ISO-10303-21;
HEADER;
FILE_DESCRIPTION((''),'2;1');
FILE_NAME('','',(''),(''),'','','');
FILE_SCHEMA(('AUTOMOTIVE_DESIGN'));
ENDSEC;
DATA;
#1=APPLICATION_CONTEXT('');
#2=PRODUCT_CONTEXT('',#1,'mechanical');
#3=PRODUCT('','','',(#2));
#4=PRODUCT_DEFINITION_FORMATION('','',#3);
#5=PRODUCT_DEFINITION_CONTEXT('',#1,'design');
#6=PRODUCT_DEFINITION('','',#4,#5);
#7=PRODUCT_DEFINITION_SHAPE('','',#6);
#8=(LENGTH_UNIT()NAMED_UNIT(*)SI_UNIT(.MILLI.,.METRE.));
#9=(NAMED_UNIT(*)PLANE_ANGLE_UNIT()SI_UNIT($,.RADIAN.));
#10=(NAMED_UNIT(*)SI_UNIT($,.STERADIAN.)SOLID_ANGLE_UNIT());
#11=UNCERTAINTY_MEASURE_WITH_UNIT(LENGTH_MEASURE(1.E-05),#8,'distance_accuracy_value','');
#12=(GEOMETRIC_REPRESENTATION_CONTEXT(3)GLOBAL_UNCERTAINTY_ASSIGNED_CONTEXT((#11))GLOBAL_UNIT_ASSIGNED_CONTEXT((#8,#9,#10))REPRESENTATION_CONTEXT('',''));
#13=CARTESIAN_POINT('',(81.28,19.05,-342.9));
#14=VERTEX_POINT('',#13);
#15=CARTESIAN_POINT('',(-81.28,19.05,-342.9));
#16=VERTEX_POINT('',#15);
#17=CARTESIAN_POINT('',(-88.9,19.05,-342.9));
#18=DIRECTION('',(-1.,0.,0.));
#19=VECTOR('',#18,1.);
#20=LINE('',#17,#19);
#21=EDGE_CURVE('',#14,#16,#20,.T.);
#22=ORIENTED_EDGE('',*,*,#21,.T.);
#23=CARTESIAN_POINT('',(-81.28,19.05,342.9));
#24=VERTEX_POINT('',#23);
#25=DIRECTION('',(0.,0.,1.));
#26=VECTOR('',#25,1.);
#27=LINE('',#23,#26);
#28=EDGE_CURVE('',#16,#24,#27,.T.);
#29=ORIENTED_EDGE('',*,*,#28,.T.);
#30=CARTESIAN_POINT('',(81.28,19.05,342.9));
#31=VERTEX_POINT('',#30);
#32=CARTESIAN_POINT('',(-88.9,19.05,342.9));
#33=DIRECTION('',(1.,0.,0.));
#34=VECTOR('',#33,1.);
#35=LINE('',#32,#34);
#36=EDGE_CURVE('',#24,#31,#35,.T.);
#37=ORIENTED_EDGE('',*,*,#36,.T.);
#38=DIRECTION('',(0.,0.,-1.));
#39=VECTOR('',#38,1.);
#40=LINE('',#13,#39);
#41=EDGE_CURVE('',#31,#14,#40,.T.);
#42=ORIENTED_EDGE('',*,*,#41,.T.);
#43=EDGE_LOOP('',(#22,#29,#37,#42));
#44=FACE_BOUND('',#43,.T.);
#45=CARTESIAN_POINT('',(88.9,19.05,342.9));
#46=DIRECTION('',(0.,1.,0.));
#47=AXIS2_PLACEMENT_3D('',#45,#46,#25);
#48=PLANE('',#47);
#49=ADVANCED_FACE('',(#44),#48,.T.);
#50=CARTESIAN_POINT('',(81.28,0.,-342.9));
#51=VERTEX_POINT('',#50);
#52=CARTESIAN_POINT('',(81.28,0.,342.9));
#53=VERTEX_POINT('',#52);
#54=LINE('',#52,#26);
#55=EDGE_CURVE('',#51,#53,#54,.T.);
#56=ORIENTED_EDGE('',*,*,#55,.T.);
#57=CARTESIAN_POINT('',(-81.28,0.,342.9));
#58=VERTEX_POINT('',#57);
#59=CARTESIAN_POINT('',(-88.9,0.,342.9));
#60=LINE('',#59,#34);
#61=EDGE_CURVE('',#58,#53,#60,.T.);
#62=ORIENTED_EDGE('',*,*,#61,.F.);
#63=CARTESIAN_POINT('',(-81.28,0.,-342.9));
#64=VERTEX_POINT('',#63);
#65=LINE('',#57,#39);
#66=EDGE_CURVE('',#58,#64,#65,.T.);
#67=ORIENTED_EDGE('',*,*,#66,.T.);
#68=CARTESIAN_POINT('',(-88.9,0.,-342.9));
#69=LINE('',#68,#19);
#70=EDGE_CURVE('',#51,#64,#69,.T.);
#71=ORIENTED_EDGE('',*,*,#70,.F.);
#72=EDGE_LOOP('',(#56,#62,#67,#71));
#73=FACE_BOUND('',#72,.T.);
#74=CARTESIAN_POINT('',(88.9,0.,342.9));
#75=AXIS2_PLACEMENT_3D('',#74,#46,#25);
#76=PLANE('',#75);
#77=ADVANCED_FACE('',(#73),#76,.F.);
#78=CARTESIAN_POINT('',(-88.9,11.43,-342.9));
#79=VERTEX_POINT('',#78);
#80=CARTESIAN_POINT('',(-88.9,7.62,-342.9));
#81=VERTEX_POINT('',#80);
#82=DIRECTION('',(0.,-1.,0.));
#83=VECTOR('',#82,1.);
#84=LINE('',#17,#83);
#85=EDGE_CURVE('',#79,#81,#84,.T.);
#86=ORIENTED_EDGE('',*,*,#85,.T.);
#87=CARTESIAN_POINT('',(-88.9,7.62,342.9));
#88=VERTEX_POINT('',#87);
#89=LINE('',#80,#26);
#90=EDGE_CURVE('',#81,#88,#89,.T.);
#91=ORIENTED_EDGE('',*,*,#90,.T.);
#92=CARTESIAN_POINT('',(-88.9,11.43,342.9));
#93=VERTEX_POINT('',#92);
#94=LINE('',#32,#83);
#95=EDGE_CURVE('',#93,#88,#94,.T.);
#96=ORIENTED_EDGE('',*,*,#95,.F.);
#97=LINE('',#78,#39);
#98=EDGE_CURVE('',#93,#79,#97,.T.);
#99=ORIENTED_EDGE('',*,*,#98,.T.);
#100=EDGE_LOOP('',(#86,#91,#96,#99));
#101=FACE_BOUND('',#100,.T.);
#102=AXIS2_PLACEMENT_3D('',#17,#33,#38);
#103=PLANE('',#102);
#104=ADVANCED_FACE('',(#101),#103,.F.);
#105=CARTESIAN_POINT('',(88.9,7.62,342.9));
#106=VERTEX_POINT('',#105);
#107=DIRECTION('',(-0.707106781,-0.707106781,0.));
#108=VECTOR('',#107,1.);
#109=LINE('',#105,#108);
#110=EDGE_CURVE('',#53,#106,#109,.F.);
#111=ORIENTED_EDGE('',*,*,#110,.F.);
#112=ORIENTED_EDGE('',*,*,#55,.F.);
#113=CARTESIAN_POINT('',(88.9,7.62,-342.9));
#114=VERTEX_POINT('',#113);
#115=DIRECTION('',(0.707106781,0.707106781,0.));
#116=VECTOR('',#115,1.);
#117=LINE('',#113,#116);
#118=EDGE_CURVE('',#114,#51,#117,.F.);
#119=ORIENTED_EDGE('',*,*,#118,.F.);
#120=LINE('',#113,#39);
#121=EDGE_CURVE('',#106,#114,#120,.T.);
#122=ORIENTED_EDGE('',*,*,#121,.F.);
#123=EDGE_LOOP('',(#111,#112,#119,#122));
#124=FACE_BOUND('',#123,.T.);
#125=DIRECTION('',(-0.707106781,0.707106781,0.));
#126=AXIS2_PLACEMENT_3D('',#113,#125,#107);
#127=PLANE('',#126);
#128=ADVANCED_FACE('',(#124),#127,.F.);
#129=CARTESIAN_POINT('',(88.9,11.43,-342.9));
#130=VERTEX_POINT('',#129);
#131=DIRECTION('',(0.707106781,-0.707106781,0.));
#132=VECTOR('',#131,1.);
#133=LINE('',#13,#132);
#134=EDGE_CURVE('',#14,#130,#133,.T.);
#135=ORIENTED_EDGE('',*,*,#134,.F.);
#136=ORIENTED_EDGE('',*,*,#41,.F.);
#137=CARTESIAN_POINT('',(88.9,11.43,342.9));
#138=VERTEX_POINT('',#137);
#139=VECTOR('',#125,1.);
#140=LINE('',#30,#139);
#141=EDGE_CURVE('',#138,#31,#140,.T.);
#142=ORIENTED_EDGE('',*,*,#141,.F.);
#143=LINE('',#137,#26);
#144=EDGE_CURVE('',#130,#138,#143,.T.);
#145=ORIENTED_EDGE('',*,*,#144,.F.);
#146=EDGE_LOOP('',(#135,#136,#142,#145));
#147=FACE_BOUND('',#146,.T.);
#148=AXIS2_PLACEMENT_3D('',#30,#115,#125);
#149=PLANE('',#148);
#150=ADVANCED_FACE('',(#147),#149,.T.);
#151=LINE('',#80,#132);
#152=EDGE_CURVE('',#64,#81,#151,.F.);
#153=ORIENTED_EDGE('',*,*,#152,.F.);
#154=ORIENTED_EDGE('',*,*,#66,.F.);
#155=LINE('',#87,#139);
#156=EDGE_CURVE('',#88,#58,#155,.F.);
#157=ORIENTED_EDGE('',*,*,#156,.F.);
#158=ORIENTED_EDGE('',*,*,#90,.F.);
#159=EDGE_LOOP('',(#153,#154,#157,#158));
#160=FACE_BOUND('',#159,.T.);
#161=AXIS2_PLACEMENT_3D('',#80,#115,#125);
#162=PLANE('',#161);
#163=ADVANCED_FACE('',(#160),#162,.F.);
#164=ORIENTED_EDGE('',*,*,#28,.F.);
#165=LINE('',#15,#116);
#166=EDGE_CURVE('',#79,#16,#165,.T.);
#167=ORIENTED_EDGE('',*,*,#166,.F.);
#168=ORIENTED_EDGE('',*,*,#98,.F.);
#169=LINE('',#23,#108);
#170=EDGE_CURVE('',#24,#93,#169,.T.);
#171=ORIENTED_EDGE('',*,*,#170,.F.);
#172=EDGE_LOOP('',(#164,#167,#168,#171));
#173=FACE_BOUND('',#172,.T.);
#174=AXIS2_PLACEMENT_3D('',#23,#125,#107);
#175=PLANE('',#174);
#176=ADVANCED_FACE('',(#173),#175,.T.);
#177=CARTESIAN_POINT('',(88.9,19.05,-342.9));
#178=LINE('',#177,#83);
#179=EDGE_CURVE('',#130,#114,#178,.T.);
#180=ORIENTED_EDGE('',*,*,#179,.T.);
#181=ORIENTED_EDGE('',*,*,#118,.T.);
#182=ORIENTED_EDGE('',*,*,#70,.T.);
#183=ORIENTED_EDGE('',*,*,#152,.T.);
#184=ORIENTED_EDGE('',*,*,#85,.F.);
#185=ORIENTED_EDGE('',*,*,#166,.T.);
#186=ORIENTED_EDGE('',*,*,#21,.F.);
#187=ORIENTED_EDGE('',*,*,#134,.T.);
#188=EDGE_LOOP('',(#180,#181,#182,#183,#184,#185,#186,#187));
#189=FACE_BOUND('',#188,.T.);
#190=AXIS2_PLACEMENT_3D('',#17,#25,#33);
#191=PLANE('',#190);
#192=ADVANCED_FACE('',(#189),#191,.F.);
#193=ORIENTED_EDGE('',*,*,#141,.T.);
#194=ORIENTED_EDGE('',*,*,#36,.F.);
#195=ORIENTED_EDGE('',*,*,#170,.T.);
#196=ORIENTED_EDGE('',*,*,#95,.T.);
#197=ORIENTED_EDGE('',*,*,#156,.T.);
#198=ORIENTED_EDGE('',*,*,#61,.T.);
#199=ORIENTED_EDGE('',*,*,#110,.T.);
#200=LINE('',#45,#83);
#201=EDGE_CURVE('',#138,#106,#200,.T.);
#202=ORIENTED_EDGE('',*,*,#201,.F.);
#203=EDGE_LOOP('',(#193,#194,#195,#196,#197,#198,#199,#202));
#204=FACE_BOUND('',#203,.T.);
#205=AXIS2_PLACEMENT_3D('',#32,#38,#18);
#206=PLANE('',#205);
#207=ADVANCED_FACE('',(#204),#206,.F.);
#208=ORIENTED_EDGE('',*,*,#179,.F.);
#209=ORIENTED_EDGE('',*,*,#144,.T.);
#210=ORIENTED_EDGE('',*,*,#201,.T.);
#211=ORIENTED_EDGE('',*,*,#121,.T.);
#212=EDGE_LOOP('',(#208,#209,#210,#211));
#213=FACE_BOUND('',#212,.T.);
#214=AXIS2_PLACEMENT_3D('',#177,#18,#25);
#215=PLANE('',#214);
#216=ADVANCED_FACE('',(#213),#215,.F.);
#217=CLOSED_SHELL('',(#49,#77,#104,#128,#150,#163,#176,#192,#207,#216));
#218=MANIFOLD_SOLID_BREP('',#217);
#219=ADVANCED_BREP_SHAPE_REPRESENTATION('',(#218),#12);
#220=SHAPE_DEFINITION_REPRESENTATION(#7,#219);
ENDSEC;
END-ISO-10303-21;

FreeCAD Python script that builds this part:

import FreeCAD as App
import Part
import Sketcher
from FreeCAD import Vector
Q = App.Units.Quantity


def edges_at(feature, points):
    """Names of the edges that pass closest to the given points."""
    edges = feature.Shape.Edges
    near = lambda p: min(range(len(edges)), key=lambda i: edges[i].distToShape(Part.Vertex(*p))[0])
    return sorted({f"Edge{near(p) + 1}" for p in points})

doc = App.newDocument("Part")
body = doc.addObject("PartDesign::Body", "Body")

# Sketch on XZ plane
sketch1 = body.newObject("Sketcher::SketchObject", "Sketch")
sketch1.AttachmentSupport = (doc.getObject("XZ_Plane"), [""])
sketch1.MapMode = "FlatFace"
sketch1.addGeometry([
    Part.LineSegment(Vector(-89, -343, 0), Vector(-89, 343, 0)),
    Part.LineSegment(Vector(-89, 343, 0), Vector(89, 343, 0)),
    Part.LineSegment(Vector(89, 343, 0), Vector(89, -343, 0)),
    Part.LineSegment(Vector(89, -343, 0), Vector(-89, -343, 0)),
], False)
sketch1.addConstraint([
    Sketcher.Constraint("Coincident", 0, 2, 1, 1),
    Sketcher.Constraint("Coincident", 1, 2, 2, 1),
    Sketcher.Constraint("Coincident", 2, 2, 3, 1),
    Sketcher.Constraint("Coincident", 3, 2, 0, 1),
    Sketcher.Constraint("Vertical", 0),
    Sketcher.Constraint("Horizontal", 1),
    Sketcher.Constraint("Vertical", 2),
    Sketcher.Constraint("Horizontal", 3),
    Sketcher.Constraint("Symmetric", 0, 2, 2, 2, -1, 1),
    Sketcher.Constraint("DistanceX", 1, 1, 1, 2, Q("7 in")),
    Sketcher.Constraint("DistanceY", 0, 1, 0, 2, Q("27 in")),
])
pad1 = body.newObject("PartDesign::Pad", "Pad")
pad1.Profile = sketch1
pad1.Length = Q("0.75 in")
pad1.Reversed = True
doc.recompute()

chamfer = body.newObject("PartDesign::Chamfer", "Chamfer")
chamfer.Base = (pad1, edges_at(pad1, [
    (-88.9, 19.05, 0),
    (88.9, 19.05, 0),
    (-88.9, 0, 0),
    (88.9, 0, 0),
]))
chamfer.Size = Q("0.3 in")

doc.recompute()
